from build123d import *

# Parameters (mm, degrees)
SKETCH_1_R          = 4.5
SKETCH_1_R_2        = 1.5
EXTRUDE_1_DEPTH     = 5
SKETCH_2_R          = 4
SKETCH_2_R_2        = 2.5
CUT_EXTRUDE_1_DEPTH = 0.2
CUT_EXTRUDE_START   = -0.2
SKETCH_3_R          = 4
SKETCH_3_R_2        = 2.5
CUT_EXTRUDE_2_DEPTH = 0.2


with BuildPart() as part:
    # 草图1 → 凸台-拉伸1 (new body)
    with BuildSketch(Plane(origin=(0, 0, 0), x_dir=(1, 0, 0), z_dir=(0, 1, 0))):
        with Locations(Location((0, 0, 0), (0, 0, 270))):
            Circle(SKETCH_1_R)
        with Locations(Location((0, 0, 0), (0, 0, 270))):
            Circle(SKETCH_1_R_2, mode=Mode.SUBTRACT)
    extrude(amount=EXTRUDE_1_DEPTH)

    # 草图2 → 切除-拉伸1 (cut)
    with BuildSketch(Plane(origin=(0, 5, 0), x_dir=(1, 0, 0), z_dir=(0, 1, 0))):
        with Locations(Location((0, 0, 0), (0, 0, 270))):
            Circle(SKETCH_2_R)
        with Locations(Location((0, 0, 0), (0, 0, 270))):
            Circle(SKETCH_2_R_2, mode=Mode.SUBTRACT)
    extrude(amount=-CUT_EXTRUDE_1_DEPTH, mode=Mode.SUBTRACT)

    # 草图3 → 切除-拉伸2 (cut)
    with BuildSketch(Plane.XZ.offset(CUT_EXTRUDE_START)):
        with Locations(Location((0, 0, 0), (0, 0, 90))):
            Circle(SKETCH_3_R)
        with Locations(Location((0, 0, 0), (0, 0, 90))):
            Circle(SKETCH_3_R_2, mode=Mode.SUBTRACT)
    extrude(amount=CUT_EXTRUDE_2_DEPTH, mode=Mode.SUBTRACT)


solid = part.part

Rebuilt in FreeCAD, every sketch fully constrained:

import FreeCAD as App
import Part
import Sketcher
Q = App.Units.Quantity

doc = App.newDocument("Part")
body = doc.addObject("PartDesign::Body", "Body")

# Sketch on XZ plane
sketch1 = body.newObject("Sketcher::SketchObject", "Sketch")
sketch1.AttachmentSupport = (doc.getObject("XZ_Plane"), [""])
sketch1.MapMode = "FlatFace"
sketch1.addGeometry([
    Part.Circle(App.Vector(0, 0, 0), App.Vector(0, 0, 1), 4.5),
    Part.Circle(App.Vector(0, 0, 0), App.Vector(0, 0, 1), 1.5),
], False)
sketch1.addConstraint([
    Sketcher.Constraint("Coincident", 0, 3, -1, 1),
    Sketcher.Constraint("Coincident", 1, 3, -1, 1),
    Sketcher.Constraint("Diameter", 0, Q("9 mm")),
    Sketcher.Constraint("Diameter", 1, Q("3 mm")),
])
pad1 = body.newObject("PartDesign::Pad", "Pad")
pad1.Profile = sketch1
pad1.Length = 5
pad1.Reversed = True

# Sketch on XZ plane
sketch2 = body.newObject("Sketcher::SketchObject", "Sketch001")
sketch2.AttachmentSupport = (doc.getObject("XZ_Plane"), [""])
sketch2.MapMode = "FlatFace"
sketch2.AttachmentOffset = App.Placement(App.Vector(0, 0, -5), App.Rotation())
sketch2.addGeometry([
    Part.Circle(App.Vector(0, 0, 0), App.Vector(0, 0, 1), 4),
    Part.Circle(App.Vector(0, 0, 0), App.Vector(0, 0, 1), 2.5),
], False)
sketch2.addConstraint([
    Sketcher.Constraint("Coincident", 0, 3, -1, 1),
    Sketcher.Constraint("Coincident", 1, 3, -1, 1),
    Sketcher.Constraint("Diameter", 0, Q("8 mm")),
    Sketcher.Constraint("Diameter", 1, Q("5 mm")),
])
pocket1 = body.newObject("PartDesign::Pocket", "Pocket")
pocket1.Profile = sketch2
pocket1.Length = 0.2
pocket1.Reversed = True

# Sketch on XZ plane
sketch3 = body.newObject("Sketcher::SketchObject", "Sketch002")
sketch3.AttachmentSupport = (doc.getObject("XZ_Plane"), [""])
sketch3.MapMode = "FlatFace"
sketch3.AttachmentOffset = App.Placement(App.Vector(0, 0, -0.2), App.Rotation())
sketch3.addGeometry([
    Part.Circle(App.Vector(0, 0, 0), App.Vector(0, 0, 1), 4),
    Part.Circle(App.Vector(0, 0, 0), App.Vector(0, 0, 1), 2.5),
], False)
sketch3.addConstraint([
    Sketcher.Constraint("Coincident", 0, 3, -1, 1),
    Sketcher.Constraint("Coincident", 1, 3, -1, 1),
    Sketcher.Constraint("Diameter", 0, Q("8 mm")),
    Sketcher.Constraint("Diameter", 1, Q("5 mm")),
])
pocket2 = body.newObject("PartDesign::Pocket", "Pocket001")
pocket2.Profile = sketch3
pocket2.Length = 0.2
pocket2.Reversed = True

doc.recompute()
